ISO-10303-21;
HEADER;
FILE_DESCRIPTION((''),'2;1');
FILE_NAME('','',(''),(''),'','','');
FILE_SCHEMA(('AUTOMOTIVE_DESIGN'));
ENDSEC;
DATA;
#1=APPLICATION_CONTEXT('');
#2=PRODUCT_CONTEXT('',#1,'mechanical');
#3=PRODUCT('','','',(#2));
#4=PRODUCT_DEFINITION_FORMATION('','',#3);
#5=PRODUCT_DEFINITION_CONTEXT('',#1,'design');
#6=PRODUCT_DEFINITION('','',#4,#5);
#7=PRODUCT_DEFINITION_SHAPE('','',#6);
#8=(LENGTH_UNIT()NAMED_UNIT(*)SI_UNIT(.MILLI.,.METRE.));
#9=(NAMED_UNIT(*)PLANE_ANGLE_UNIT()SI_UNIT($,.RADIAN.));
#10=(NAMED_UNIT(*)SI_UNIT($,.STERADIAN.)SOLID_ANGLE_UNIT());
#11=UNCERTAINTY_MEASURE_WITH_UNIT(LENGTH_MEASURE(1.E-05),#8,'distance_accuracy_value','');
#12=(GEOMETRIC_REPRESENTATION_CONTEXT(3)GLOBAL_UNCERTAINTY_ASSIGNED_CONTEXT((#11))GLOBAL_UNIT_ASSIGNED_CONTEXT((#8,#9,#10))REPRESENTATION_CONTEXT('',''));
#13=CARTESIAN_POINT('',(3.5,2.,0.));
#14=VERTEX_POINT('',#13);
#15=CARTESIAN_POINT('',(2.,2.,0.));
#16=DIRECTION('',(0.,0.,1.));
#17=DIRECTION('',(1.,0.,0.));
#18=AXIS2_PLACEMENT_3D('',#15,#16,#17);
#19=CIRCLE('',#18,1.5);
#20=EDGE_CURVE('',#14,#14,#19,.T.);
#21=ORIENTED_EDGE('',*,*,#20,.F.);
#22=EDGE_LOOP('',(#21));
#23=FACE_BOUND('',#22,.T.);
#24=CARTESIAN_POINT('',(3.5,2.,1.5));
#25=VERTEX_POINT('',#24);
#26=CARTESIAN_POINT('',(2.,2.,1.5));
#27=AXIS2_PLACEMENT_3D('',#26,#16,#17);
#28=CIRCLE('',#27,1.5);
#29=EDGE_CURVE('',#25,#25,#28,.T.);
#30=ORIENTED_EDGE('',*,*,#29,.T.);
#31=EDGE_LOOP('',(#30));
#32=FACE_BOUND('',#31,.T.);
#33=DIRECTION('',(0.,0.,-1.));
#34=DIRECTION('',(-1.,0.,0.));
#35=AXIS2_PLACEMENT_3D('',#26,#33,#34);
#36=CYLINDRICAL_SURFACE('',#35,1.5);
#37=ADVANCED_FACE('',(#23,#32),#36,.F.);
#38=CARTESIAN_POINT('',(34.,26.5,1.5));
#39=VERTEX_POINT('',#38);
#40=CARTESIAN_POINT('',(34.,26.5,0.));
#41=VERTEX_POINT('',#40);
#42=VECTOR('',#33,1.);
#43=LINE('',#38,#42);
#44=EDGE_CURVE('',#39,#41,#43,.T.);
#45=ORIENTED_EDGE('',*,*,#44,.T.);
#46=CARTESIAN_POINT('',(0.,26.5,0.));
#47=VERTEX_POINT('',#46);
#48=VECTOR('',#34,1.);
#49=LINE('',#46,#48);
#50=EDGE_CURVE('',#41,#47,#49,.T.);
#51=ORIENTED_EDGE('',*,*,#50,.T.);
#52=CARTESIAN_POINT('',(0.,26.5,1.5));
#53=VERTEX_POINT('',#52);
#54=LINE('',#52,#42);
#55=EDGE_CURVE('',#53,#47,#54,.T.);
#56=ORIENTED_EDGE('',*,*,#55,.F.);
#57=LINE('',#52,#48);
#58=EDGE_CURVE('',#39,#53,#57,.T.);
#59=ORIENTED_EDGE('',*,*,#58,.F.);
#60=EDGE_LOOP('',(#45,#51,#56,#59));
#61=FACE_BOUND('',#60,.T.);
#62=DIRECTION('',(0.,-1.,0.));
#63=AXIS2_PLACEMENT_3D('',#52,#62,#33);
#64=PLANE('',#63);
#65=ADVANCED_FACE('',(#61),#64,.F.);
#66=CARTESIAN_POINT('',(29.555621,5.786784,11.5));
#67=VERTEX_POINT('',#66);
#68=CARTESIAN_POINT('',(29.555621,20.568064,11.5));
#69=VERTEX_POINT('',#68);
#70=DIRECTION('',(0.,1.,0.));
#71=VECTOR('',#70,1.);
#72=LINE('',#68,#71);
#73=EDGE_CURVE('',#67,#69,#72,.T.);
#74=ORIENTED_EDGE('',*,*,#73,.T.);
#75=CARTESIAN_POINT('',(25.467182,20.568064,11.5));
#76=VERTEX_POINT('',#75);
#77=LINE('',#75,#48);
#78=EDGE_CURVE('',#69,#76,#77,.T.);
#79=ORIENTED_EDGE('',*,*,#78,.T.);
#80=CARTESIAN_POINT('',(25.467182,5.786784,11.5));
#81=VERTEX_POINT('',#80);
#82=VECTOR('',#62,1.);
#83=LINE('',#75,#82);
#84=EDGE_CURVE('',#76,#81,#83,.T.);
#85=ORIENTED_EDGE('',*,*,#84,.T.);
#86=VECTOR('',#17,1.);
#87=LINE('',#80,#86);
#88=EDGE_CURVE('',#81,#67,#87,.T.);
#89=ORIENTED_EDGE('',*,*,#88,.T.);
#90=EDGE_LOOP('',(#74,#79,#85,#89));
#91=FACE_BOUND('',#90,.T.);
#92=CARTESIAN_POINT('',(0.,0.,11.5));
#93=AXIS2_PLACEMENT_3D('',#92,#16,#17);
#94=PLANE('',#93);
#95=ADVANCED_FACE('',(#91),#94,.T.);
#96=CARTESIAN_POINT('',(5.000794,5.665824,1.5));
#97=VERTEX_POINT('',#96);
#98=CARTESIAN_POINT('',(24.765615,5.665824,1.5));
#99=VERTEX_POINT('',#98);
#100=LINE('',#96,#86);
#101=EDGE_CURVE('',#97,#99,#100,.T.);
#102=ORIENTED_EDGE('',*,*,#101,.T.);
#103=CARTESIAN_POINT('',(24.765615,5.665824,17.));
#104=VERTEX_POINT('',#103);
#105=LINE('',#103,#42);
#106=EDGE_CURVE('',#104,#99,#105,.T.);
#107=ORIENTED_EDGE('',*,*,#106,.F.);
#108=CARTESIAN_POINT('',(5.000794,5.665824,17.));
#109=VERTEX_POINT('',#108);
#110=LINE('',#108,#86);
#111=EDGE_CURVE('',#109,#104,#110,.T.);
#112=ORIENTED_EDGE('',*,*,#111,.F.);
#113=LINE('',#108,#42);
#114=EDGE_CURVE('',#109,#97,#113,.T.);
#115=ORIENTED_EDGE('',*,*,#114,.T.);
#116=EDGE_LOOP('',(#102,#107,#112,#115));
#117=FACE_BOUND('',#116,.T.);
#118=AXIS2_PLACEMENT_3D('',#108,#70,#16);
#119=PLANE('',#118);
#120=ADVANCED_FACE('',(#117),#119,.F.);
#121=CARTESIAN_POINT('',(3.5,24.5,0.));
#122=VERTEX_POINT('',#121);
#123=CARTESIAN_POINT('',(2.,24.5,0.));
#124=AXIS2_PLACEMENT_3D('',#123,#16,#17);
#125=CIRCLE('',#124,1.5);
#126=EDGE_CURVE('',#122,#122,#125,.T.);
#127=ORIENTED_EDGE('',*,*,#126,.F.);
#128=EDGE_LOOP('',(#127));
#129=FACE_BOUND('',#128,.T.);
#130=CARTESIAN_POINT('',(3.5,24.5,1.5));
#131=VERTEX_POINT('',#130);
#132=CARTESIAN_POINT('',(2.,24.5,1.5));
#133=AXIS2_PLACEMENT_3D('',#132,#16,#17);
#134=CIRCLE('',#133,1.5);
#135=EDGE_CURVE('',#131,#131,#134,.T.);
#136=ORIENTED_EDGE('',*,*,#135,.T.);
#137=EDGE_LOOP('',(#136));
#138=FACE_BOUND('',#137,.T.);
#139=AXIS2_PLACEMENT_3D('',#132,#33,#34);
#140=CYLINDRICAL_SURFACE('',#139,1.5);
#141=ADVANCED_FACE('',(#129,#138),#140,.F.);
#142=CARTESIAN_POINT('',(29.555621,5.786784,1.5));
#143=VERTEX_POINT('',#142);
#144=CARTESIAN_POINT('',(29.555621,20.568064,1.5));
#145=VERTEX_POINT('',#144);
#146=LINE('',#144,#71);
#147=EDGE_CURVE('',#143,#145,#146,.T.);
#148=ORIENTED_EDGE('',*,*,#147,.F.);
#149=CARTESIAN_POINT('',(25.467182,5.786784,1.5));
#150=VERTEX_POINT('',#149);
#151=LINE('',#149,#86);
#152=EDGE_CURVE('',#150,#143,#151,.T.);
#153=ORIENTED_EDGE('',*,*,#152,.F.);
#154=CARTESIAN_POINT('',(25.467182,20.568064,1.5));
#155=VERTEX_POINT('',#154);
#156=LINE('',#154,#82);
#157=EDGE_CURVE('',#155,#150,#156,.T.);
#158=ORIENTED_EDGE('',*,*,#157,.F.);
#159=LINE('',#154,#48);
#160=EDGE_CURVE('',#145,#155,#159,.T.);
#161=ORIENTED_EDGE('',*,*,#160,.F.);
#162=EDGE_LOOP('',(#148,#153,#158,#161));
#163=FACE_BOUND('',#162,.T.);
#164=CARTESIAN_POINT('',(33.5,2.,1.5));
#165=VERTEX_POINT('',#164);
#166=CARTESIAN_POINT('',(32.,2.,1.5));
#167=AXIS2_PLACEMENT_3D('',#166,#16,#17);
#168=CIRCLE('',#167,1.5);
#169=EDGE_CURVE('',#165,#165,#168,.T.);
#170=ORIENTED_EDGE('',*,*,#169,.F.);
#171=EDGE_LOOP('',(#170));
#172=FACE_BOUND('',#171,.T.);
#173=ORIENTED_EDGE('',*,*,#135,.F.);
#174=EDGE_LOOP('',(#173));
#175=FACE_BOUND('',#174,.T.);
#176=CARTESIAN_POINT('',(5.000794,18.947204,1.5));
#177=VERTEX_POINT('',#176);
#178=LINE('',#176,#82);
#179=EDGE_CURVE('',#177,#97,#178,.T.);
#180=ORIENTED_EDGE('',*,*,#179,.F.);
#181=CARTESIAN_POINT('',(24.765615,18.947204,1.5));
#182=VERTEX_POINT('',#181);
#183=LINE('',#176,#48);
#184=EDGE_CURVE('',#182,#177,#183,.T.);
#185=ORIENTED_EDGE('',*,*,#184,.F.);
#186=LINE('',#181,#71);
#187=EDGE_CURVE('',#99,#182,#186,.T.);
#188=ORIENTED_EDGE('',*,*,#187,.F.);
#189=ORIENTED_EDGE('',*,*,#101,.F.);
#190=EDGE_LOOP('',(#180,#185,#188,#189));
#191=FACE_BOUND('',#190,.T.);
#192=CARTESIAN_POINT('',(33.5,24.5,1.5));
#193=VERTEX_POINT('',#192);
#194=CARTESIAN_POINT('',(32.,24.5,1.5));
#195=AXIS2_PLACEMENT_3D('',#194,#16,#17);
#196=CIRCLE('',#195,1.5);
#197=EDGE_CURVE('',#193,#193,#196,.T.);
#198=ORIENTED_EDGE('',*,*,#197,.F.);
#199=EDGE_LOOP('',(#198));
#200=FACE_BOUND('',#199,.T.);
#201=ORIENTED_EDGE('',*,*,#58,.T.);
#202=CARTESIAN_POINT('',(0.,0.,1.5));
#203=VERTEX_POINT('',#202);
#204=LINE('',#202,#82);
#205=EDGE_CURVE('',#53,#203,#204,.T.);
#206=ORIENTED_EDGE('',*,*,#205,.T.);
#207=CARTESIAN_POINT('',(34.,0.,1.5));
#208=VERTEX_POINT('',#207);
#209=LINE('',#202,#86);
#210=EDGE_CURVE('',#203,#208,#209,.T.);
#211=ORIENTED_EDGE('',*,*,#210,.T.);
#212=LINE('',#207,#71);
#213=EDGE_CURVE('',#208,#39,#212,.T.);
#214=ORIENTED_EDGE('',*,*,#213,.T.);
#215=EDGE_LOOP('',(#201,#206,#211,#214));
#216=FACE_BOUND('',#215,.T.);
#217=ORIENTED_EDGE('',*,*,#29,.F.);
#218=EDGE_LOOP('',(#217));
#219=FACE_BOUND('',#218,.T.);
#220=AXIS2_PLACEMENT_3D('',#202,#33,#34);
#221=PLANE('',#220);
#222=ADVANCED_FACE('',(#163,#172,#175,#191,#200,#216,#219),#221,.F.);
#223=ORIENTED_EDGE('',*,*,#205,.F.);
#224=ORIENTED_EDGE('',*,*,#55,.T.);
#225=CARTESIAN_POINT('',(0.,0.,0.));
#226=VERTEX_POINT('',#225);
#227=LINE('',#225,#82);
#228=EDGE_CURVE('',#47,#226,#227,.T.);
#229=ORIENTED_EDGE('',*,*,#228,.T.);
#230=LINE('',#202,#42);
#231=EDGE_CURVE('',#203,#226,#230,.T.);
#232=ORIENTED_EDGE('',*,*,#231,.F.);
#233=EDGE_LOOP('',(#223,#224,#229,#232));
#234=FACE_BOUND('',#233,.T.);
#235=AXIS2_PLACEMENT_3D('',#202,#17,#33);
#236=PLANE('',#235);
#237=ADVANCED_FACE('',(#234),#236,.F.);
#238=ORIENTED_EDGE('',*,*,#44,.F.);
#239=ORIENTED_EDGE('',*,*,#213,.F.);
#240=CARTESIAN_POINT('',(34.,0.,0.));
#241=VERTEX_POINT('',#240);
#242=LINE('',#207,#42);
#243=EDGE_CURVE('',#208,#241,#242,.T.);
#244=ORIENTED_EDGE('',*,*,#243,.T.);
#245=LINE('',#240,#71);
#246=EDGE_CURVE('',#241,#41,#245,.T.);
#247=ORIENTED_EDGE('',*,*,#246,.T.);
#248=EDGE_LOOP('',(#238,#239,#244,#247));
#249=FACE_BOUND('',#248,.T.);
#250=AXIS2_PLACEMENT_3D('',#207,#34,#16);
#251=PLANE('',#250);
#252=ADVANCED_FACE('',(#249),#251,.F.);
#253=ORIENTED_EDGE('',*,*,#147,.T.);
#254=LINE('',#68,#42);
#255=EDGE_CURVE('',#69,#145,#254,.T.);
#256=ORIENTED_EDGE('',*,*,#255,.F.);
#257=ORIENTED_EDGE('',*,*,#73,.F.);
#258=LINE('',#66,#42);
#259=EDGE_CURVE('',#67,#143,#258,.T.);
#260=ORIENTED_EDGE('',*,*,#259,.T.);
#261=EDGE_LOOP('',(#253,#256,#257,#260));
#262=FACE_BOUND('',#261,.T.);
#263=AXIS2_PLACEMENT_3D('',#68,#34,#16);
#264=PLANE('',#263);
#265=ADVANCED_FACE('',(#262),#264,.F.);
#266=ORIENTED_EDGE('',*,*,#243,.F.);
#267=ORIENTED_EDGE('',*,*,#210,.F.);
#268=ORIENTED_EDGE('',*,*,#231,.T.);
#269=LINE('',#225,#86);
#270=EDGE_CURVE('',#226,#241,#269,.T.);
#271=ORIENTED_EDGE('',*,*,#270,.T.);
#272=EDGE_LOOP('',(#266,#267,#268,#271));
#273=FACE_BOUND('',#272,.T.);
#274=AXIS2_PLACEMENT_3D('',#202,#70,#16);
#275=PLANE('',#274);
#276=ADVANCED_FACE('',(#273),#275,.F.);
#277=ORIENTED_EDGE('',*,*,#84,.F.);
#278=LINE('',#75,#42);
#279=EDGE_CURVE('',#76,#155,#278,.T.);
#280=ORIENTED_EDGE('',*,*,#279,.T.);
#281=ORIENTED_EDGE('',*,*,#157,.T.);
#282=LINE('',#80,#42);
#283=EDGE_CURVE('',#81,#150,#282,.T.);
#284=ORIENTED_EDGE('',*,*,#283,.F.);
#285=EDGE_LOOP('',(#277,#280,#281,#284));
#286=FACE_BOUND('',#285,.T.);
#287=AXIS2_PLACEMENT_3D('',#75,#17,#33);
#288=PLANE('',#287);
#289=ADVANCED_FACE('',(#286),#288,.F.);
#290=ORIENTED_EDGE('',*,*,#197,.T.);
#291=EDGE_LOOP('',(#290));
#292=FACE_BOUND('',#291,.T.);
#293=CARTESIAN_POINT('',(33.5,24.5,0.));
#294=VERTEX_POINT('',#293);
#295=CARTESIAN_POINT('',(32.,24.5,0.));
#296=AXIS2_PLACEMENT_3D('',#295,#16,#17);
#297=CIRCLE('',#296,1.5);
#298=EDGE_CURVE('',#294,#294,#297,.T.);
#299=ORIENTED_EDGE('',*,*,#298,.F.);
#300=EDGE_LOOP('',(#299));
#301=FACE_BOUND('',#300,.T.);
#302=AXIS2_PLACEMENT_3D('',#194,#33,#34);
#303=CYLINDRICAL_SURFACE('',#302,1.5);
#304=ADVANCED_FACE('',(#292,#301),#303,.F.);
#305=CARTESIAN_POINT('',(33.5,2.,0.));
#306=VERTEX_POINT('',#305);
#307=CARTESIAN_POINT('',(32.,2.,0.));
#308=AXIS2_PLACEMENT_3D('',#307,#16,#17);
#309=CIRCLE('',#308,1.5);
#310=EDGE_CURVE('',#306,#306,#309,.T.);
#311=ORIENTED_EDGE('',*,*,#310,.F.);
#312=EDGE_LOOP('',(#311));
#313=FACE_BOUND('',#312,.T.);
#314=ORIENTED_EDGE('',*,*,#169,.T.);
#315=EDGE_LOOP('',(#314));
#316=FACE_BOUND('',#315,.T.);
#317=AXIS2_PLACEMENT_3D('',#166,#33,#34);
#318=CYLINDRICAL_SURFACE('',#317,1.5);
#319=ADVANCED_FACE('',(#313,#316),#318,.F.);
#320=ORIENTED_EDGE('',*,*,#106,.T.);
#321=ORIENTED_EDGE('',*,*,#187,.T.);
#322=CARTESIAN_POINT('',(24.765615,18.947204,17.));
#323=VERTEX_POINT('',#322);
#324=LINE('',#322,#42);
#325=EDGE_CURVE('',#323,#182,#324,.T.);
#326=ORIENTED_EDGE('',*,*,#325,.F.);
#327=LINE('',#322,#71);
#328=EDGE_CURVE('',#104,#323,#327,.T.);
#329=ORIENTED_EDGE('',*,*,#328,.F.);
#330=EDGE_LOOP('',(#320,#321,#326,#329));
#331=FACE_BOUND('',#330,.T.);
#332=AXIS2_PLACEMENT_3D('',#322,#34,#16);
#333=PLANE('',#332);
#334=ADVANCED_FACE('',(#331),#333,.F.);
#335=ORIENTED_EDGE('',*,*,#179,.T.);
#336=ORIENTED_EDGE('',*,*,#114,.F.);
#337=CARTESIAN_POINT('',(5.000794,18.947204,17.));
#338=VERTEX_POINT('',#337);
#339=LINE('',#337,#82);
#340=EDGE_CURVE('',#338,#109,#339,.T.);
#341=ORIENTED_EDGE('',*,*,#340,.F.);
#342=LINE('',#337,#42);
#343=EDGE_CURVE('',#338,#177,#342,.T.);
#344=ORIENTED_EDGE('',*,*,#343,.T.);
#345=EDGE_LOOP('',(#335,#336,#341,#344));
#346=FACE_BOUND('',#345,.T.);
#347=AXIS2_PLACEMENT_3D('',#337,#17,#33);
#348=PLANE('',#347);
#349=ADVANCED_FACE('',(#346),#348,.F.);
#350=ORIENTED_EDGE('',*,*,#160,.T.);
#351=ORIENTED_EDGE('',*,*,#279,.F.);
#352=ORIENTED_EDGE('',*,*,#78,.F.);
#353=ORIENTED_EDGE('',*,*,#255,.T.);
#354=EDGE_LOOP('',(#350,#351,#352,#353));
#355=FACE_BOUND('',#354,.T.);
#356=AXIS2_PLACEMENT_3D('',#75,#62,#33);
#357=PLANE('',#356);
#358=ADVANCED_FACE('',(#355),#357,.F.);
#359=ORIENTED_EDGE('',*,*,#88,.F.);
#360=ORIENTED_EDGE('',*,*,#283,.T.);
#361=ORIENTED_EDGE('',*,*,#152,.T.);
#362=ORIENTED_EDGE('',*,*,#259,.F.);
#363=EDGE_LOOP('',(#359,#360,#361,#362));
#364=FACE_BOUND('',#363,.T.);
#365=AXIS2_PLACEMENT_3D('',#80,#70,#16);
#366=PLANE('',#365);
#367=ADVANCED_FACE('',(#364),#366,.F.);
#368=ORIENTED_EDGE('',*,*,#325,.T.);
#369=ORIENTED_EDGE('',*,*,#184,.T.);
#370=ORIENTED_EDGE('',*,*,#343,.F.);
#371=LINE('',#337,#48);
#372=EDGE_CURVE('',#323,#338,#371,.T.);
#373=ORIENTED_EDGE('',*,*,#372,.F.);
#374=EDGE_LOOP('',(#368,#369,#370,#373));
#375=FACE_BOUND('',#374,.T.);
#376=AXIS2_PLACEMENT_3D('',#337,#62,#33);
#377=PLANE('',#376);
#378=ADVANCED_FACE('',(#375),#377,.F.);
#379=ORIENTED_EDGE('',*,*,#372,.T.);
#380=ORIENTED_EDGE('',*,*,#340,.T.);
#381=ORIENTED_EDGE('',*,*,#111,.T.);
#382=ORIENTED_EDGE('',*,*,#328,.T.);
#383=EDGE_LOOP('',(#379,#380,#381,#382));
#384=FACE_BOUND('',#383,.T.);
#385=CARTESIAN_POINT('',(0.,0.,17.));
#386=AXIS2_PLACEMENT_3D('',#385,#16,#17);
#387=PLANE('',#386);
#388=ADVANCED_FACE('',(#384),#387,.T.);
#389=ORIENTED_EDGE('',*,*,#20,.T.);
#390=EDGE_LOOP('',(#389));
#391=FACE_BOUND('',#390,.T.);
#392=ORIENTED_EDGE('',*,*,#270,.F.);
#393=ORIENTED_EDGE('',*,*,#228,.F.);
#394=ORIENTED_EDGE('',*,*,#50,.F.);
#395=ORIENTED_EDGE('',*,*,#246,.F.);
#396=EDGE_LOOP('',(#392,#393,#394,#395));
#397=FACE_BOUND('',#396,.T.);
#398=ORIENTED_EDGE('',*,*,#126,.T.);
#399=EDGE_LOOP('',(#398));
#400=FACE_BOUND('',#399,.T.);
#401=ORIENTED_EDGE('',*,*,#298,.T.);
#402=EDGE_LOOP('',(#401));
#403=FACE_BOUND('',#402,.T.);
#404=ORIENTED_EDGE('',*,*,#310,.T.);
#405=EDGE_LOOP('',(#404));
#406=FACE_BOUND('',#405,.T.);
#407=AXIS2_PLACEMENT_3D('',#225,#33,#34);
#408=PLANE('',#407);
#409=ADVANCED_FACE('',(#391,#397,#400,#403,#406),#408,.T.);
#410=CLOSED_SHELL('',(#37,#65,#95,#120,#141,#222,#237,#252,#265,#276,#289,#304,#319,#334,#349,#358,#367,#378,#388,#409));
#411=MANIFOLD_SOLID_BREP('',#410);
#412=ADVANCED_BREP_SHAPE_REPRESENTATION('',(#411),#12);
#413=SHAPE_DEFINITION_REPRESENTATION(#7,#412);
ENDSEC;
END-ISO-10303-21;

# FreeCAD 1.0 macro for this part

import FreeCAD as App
import Part
import Sketcher

V = App.Vector
Q = App.Units.Quantity


def add_polygon(sketch, points):
    """Adds a closed chain of lines whose ends are joined by coincident constraints."""
    first, n = sketch.GeometryCount, len(points)
    for a, b in zip(points, points[1:] + points[:1]):
        sketch.addGeometry(Part.LineSegment(App.Vector(*a, 0), App.Vector(*b, 0)), False)
    for i in range(n):
        sketch.addConstraint(Sketcher.Constraint("Coincident", first + i, 2, first + (i + 1) % n, 1))

doc = App.newDocument("Part")
body = doc.addObject("PartDesign::Body", "Body")

# Sketch on XY plane
sketch1 = body.newObject("Sketcher::SketchObject", "Sketch")
sketch1.AttachmentSupport = (doc.getObject("XY_Plane"), [""])
sketch1.MapMode = "FlatFace"
add_polygon(sketch1, [(0, 26.5), (0, 0), (34, 0), (34, 26.5)])  # lines 0-3
sketch1.addGeometry(Part.Circle(V(2, 2, 0), V(0, 0, 1), 1.5), False)  # 4
sketch1.addGeometry(Part.Circle(V(32, 2, 0), V(0, 0, 1), 1.5), False)  # 5
sketch1.addGeometry(Part.Circle(V(2, 24.5, 0), V(0, 0, 1), 1.5), False)  # 6
sketch1.addGeometry(Part.Circle(V(32, 24.5, 0), V(0, 0, 1), 1.5), False)  # 7
sketch1.addConstraint(Sketcher.Constraint("Vertical", 0))
sketch1.addConstraint(Sketcher.Constraint("Horizontal", 1))
sketch1.addConstraint(Sketcher.Constraint("Vertical", 2))
sketch1.addConstraint(Sketcher.Constraint("Horizontal", 3))
sketch1.addConstraint(Sketcher.Constraint("Coincident", 0, 2, -1, 1))
sketch1.addConstraint(Sketcher.Constraint("Equal", 4, 5))
sketch1.addConstraint(Sketcher.Constraint("Equal", 5, 6))
sketch1.addConstraint(Sketcher.Constraint("Equal", 6, 7))
sketch1.addConstraint(Sketcher.Constraint("Horizontal", 4, 3, 5, 3))
sketch1.addConstraint(Sketcher.Constraint("Horizontal", 6, 3, 7, 3))
sketch1.addConstraint(Sketcher.Constraint("Vertical", 4, 3, 6, 3))
sketch1.addConstraint(Sketcher.Constraint("Vertical", 5, 3, 7, 3))
sketch1.addConstraint(Sketcher.Constraint("Diameter", 4, Q("3 mm")))
sketch1.addConstraint(Sketcher.Constraint("DistanceX", 1, 1, 1, 2, Q("34 mm")))
sketch1.addConstraint(Sketcher.Constraint("DistanceY", 0, 2, 0, 1, Q("26.5 mm")))
sketch1.addConstraint(Sketcher.Constraint("DistanceX", -1, 1, 4, 3, Q("2 mm")))
sketch1.addConstraint(Sketcher.Constraint("DistanceY", -1, 1, 4, 3, Q("2 mm")))
sketch1.addConstraint(Sketcher.Constraint("DistanceX", -1, 1, 5, 3, Q("32 mm")))
sketch1.addConstraint(Sketcher.Constraint("DistanceY", 7, 3, 2, 2, Q("2 mm")))
pad1 = body.newObject("PartDesign::Pad", "Pad")
pad1.Profile = sketch1
pad1.Length = 1.5

# Sketch on XY plane
sketch2 = body.newObject("Sketcher::SketchObject", "Sketch001")
sketch2.AttachmentSupport = (doc.getObject("XY_Plane"), [""])
sketch2.MapMode = "FlatFace"
sketch2.AttachmentOffset = App.Placement(V(0, 0, 1.5), App.Rotation())
add_polygon(sketch2, [(5, 19), (5, 6), (25, 6), (25, 19)])  # lines 0-3
sketch2.addConstraint(Sketcher.Constraint("Vertical", 0))
sketch2.addConstraint(Sketcher.Constraint("Horizontal", 1))
sketch2.addConstraint(Sketcher.Constraint("Vertical", 2))
sketch2.addConstraint(Sketcher.Constraint("Horizontal", 3))
sketch2.addConstraint(Sketcher.Constraint("DistanceX", 1, 1, 1, 2, Q("19.764821 mm")))
sketch2.addConstraint(Sketcher.Constraint("DistanceY", 0, 2, 0, 1, Q("13.281379 mm")))
sketch2.addConstraint(Sketcher.Constraint("DistanceX", -1, 1, 0, 2, Q("5.000794 mm")))
sketch2.addConstraint(Sketcher.Constraint("DistanceY", -1, 1, 0, 2, Q("5.665824 mm")))
pad2 = body.newObject("PartDesign::Pad", "Pad001")
pad2.Profile = sketch2
pad2.Length = 15.5

# Sketch on XY plane
sketch3 = body.newObject("Sketcher::SketchObject", "Sketch002")
sketch3.AttachmentSupport = (doc.getObject("XY_Plane"), [""])
sketch3.MapMode = "FlatFace"
sketch3.AttachmentOffset = App.Placement(V(0, 0, 1.5), App.Rotation())
add_polygon(sketch3, [(25.5, 20.6), (25.5, 5.8), (29.6, 5.8), (29.6, 20.6)])  # lines 0-3
sketch3.addConstraint(Sketcher.Constraint("Vertical", 0))
sketch3.addConstraint(Sketcher.Constraint("Horizontal", 1))
sketch3.addConstraint(Sketcher.Constraint("Vertical", 2))
sketch3.addConstraint(Sketcher.Constraint("Horizontal", 3))
sketch3.addConstraint(Sketcher.Constraint("DistanceX", 1, 1, 1, 2, Q("4.088439 mm")))
sketch3.addConstraint(Sketcher.Constraint("DistanceY", 0, 2, 0, 1, Q("14.78128 mm")))
sketch3.addConstraint(Sketcher.Constraint("DistanceX", -1, 1, 0, 2, Q("25.467182 mm")))
sketch3.addConstraint(Sketcher.Constraint("DistanceY", -1, 1, 0, 2, Q("5.786784 mm")))
pad3 = body.newObject("PartDesign::Pad", "Pad002")
pad3.Profile = sketch3
pad3.Length = 10

doc.recompute()
